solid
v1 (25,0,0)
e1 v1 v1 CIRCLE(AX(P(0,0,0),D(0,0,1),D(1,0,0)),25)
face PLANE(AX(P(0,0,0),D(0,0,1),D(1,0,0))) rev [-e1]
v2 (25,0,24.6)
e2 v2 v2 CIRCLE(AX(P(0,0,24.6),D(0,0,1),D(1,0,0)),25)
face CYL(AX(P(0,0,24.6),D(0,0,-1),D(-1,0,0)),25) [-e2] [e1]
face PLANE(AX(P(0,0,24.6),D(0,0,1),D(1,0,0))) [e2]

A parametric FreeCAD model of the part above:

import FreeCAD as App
import Part
import Sketcher
Q = App.Units.Quantity

doc = App.newDocument("Part")
body = doc.addObject("PartDesign::Body", "Body")

# Sketch on XY plane
sketch1 = body.newObject("Sketcher::SketchObject", "Sketch")
sketch1.AttachmentSupport = (doc.getObject("XY_Plane"), [""])
sketch1.MapMode = "FlatFace"
sketch1.addGeometry(Part.Circle(App.Vector(0, 0, 0), App.Vector(0, 0, 1), 25), False)
sketch1.addConstraint(Sketcher.Constraint("Coincident", 0, 3, -1, 1))
sketch1.addConstraint(Sketcher.Constraint("Diameter", 0, Q("50 mm")))
pad1 = body.newObject("PartDesign::Pad", "Pad")
pad1.Profile = sketch1
pad1.Length = 24.6

doc.recompute()
